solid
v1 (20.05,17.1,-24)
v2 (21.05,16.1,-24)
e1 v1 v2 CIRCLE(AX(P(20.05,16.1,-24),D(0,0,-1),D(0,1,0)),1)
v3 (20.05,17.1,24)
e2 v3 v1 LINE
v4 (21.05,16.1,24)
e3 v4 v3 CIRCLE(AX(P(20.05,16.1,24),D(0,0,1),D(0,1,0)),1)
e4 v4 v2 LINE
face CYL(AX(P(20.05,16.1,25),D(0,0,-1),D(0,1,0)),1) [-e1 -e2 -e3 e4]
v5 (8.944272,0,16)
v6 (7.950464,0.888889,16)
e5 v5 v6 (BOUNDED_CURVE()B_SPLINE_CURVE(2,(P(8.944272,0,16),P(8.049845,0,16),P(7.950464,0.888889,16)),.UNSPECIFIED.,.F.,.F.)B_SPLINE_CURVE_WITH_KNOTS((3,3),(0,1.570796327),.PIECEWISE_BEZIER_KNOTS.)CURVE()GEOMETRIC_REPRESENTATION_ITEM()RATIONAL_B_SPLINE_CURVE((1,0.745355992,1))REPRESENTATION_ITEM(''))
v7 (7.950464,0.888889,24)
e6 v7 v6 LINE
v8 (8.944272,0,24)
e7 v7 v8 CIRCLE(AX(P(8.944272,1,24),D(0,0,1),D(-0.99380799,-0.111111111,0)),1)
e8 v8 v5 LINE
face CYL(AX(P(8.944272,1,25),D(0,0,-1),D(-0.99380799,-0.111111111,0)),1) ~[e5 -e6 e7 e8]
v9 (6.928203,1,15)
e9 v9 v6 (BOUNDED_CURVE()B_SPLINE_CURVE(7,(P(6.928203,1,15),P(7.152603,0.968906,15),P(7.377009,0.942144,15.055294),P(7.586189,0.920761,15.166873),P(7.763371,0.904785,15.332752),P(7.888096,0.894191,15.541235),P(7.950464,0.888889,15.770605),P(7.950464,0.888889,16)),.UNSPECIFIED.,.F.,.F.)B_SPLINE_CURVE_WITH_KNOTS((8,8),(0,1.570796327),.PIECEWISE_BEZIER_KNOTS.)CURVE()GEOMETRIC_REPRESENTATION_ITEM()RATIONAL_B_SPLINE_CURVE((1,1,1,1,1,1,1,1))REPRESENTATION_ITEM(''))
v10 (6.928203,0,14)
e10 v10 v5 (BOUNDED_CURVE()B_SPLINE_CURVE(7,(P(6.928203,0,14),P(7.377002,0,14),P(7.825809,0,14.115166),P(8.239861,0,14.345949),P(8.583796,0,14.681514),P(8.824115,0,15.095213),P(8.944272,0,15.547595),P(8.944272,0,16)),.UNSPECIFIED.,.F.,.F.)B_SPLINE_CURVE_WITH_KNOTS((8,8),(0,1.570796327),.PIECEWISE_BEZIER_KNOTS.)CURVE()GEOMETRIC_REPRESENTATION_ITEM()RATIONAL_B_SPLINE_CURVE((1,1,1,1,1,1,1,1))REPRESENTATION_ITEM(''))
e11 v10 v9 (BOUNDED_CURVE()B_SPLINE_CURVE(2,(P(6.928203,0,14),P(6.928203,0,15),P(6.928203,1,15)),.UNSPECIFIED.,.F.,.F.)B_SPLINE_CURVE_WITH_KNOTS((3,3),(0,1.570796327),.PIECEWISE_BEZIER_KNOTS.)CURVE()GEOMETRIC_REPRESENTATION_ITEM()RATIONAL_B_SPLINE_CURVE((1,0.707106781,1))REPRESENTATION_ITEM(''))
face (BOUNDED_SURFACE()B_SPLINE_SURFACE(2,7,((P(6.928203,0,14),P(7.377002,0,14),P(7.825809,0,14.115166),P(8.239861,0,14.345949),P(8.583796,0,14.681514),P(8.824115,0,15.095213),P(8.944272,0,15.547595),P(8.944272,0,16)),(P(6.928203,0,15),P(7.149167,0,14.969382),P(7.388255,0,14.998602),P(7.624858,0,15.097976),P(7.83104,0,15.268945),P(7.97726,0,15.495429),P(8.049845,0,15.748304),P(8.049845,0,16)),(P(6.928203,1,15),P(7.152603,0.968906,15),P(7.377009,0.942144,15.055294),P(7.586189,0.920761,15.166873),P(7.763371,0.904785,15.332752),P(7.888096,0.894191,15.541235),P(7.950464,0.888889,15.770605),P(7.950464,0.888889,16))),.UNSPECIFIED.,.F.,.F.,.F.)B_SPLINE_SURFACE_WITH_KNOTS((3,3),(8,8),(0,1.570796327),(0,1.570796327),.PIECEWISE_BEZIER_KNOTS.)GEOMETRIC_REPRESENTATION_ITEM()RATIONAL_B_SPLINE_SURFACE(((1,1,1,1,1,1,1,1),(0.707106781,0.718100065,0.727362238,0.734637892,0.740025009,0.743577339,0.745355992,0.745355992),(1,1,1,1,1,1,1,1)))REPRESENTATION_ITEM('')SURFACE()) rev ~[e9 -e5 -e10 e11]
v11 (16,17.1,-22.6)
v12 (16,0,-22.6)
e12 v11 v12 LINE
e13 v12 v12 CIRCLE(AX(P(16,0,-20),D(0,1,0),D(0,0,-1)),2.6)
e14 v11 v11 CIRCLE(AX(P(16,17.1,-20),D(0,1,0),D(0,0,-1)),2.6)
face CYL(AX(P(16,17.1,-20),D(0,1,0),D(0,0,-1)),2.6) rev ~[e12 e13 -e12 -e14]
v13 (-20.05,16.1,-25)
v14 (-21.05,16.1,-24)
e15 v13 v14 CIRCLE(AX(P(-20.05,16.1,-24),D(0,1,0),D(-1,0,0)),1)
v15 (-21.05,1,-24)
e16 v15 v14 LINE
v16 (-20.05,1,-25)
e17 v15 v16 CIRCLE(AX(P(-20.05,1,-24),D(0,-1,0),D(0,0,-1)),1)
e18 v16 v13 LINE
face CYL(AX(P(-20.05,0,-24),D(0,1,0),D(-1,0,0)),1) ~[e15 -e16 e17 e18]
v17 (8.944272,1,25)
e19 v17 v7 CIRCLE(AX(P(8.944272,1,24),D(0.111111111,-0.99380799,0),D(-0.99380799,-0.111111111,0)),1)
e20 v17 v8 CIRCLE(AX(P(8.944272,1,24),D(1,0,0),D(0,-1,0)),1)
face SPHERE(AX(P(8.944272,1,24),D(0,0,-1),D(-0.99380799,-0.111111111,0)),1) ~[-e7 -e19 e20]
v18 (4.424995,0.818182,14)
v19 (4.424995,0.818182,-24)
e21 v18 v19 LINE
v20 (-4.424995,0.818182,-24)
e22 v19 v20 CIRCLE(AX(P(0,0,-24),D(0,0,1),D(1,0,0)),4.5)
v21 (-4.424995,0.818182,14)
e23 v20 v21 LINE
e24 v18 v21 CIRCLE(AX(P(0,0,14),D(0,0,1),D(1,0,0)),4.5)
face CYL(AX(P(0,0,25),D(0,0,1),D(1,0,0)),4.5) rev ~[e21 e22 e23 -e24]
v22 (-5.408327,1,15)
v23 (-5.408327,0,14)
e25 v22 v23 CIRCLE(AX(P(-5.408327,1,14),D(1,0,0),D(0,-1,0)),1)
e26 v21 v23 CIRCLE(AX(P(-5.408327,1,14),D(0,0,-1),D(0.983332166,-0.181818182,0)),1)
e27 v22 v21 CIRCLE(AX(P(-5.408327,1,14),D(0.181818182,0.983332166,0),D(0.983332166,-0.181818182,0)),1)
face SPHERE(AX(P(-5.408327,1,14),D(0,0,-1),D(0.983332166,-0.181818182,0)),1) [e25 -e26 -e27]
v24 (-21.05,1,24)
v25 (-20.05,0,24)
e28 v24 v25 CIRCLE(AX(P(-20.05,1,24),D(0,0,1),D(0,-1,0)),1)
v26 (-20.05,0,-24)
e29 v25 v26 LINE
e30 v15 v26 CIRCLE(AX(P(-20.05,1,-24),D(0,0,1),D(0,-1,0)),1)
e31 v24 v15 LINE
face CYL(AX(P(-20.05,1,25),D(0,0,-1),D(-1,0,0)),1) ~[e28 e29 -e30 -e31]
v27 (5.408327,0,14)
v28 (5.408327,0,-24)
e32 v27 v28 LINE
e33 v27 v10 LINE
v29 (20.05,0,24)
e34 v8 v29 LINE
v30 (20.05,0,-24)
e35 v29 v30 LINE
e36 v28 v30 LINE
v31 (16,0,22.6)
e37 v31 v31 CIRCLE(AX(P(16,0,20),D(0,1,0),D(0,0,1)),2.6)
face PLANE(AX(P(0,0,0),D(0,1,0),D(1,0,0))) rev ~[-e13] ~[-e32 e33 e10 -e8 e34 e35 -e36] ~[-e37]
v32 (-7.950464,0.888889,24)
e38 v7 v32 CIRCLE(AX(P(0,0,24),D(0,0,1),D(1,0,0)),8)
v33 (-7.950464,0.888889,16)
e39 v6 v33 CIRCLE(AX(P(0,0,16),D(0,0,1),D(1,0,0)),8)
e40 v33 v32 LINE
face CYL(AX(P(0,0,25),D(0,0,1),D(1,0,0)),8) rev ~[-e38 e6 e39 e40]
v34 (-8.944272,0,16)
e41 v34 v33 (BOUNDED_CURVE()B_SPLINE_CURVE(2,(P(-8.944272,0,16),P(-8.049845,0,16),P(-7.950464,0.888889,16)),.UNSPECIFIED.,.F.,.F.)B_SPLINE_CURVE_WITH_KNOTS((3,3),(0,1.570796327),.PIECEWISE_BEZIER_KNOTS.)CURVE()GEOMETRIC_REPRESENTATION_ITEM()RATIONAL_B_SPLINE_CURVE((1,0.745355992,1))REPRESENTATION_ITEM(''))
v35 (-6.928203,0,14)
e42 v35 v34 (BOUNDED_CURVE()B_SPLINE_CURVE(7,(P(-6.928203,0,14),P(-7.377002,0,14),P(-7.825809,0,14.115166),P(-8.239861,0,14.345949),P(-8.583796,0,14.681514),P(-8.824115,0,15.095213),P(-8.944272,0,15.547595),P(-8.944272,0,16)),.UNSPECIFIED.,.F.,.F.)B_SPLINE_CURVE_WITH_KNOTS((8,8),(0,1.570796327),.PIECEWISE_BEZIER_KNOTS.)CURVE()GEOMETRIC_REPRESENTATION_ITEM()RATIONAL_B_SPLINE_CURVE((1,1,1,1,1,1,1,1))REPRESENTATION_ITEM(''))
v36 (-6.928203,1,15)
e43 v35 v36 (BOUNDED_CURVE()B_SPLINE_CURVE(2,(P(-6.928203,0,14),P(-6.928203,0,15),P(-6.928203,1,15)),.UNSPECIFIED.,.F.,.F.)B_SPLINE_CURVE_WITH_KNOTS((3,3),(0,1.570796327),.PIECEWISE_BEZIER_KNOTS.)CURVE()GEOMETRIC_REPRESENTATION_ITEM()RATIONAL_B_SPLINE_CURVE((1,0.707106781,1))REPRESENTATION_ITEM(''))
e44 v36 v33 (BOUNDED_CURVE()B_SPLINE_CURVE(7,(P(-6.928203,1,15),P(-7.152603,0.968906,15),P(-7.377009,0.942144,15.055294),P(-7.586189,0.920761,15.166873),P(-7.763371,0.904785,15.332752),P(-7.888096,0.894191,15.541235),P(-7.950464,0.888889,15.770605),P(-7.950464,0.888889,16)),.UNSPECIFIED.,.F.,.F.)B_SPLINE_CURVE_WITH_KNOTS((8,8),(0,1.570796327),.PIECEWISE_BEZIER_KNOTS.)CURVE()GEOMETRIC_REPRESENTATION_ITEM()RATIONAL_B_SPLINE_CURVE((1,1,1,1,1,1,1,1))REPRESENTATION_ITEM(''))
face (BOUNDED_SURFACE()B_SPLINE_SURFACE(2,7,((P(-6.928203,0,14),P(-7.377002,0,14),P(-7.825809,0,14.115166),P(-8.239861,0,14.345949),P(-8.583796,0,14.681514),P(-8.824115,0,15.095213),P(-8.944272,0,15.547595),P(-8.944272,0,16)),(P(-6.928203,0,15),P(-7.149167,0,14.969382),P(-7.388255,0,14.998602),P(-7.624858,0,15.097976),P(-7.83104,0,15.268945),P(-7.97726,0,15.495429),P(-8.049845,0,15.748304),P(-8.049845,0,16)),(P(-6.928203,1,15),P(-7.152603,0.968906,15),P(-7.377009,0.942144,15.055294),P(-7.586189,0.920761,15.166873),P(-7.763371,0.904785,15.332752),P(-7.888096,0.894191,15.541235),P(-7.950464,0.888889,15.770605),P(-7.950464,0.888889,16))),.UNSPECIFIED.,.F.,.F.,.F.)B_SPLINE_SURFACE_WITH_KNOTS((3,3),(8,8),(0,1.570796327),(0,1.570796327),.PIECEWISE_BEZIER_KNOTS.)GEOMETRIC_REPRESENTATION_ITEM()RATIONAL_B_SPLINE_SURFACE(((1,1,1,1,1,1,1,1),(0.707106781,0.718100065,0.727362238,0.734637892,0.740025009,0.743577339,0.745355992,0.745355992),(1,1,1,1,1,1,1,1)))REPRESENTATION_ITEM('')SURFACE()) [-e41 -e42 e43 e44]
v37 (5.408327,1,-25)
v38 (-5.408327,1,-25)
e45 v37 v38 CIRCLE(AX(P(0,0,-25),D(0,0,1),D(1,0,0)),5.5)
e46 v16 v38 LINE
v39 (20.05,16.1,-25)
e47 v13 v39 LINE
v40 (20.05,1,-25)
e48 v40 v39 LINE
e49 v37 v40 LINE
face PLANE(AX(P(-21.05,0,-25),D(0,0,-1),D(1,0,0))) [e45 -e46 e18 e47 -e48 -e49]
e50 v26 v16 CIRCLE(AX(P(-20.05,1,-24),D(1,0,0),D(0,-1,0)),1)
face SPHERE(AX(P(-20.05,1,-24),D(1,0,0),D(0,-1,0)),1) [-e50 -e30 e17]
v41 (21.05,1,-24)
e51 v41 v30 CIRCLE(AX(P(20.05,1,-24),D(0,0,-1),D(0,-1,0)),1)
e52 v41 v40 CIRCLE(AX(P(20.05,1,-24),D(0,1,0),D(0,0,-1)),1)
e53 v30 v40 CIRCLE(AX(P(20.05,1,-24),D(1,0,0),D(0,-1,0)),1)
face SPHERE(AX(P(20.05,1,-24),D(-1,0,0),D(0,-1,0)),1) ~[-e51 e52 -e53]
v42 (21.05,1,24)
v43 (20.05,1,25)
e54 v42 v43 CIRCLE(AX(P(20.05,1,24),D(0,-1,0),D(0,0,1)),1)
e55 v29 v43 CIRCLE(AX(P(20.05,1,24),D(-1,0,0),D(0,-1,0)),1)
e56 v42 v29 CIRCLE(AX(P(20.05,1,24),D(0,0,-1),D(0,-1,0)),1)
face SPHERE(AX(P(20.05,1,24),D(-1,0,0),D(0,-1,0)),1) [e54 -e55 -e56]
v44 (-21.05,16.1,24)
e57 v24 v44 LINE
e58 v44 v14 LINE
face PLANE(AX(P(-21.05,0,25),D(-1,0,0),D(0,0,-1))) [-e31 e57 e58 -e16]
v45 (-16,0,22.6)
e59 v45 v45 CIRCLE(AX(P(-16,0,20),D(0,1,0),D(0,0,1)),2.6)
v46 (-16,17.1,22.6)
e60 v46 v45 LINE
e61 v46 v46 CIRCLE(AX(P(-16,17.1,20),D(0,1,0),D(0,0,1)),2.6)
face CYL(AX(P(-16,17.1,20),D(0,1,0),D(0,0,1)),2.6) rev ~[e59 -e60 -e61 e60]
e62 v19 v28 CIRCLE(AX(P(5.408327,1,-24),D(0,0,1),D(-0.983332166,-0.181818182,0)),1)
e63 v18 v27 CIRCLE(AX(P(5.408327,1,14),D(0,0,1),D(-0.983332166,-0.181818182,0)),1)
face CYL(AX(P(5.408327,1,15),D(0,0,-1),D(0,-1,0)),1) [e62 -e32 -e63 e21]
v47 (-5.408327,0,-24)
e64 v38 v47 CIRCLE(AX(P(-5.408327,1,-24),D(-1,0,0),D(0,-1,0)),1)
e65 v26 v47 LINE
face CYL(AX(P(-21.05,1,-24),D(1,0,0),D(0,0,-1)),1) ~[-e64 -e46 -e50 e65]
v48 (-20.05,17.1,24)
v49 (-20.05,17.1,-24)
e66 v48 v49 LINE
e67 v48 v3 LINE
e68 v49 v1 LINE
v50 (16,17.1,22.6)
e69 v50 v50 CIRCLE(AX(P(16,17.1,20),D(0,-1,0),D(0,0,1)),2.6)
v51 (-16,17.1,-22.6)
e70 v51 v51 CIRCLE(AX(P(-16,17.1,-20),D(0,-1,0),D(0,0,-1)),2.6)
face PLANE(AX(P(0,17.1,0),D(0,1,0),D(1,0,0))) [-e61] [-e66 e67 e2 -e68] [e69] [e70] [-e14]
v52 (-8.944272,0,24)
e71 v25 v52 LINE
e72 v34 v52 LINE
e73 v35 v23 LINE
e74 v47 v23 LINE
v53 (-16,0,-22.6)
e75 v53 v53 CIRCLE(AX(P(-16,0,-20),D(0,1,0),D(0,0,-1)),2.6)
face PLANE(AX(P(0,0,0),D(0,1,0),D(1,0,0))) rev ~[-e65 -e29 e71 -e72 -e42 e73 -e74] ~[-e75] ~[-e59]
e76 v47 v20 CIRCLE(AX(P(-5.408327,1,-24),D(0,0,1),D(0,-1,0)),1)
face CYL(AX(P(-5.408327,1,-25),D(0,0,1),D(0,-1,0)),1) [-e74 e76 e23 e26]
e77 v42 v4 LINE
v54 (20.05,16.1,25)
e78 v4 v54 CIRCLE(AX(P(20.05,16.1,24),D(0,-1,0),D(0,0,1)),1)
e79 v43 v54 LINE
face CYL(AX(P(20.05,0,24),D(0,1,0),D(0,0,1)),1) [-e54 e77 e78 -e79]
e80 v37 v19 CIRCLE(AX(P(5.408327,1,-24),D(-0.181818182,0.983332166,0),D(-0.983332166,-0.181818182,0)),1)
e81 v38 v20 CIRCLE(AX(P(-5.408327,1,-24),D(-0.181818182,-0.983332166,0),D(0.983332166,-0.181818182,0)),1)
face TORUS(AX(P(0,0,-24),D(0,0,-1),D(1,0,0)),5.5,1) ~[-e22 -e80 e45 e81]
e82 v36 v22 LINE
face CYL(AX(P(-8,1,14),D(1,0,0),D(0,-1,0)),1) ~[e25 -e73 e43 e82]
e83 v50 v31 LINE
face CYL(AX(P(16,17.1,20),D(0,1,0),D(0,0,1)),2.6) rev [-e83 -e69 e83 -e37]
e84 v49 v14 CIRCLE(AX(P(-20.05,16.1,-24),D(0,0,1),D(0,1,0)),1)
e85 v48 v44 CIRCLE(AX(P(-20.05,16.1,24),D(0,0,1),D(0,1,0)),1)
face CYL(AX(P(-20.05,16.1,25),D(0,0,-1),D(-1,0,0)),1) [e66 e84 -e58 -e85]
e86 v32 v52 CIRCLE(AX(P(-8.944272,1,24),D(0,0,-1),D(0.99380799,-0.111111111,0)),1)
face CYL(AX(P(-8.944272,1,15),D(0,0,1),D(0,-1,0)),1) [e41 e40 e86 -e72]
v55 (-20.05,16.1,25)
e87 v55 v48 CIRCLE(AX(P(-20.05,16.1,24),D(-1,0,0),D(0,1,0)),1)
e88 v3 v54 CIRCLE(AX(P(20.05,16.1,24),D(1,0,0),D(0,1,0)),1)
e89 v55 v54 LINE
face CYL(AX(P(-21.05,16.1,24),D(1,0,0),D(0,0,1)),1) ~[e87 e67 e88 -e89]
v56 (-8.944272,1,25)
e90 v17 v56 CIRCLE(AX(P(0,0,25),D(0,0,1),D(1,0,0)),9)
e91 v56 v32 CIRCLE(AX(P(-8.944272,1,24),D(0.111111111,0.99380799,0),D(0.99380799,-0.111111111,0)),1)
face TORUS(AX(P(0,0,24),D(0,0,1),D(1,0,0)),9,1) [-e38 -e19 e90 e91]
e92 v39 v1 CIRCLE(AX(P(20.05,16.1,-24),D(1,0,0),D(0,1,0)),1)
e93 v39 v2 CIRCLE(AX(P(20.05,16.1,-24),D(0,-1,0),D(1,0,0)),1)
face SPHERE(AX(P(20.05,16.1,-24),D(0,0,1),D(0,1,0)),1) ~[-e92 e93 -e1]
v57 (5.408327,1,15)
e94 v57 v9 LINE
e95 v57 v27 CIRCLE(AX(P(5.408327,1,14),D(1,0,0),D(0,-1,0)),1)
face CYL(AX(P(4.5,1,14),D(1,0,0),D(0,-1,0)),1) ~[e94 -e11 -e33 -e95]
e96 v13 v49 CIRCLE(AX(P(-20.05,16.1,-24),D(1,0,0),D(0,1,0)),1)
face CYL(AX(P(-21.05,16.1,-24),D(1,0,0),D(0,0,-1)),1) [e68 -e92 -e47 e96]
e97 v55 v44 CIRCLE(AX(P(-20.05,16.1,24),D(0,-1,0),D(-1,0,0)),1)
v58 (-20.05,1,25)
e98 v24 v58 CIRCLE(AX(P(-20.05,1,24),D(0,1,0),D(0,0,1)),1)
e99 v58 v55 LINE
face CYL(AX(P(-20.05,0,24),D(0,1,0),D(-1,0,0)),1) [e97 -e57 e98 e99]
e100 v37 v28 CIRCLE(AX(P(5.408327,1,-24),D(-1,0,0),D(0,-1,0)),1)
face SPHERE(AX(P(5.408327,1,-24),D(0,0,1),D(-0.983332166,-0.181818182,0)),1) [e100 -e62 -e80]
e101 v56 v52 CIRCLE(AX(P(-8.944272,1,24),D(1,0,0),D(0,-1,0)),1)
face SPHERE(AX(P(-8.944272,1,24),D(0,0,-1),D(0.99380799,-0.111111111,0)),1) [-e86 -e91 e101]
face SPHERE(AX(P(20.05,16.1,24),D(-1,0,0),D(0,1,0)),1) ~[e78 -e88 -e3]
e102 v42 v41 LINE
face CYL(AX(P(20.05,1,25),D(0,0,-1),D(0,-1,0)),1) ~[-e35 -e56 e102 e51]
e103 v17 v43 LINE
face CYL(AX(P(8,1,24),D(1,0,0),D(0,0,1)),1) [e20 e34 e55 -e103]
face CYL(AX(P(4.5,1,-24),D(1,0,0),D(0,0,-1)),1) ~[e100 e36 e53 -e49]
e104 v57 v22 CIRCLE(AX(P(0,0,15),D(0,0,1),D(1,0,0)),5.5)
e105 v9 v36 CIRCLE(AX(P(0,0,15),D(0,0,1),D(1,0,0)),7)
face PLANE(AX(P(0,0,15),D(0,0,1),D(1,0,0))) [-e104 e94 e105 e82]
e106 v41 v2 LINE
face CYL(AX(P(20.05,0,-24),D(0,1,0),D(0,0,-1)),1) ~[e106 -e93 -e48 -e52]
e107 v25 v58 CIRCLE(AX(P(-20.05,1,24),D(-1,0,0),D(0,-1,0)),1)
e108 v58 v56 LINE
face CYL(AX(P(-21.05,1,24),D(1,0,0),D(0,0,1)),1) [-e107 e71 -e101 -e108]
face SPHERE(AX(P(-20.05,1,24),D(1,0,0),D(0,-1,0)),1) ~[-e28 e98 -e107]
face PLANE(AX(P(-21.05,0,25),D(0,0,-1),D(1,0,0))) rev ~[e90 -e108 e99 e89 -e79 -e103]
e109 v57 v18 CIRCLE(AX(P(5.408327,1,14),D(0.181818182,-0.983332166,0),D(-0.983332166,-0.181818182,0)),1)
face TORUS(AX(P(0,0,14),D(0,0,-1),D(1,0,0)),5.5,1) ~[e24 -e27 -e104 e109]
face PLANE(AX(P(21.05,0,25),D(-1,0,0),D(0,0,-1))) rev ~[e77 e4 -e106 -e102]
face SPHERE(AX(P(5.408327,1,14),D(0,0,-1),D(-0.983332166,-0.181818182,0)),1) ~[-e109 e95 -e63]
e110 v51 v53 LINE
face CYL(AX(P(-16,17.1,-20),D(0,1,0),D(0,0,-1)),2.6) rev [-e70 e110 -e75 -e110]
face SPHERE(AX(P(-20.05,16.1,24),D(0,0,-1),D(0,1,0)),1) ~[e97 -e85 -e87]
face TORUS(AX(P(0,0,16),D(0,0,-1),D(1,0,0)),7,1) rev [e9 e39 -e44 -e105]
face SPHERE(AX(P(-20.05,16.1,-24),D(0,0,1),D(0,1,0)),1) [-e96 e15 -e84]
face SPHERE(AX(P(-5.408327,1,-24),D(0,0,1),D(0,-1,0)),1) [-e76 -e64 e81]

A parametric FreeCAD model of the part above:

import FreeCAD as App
import Part
import Sketcher
from FreeCAD import Vector


def edges_at(feature, points):
    """Names of the edges that pass closest to the given points."""
    edges = feature.Shape.Edges
    near = lambda p: min(range(len(edges)), key=lambda i: edges[i].distToShape(Part.Vertex(*p))[0])
    return sorted({f"Edge{near(p) + 1}" for p in points})

doc = App.newDocument("Part")
body = doc.addObject("PartDesign::Body", "Body")

# Sketch on XZ plane
sketch1 = doc.addObject("Sketcher::SketchObject", "Sketch")
body.addObject(sketch1)
sketch1.AttachmentSupport = (doc.XZ_Plane, [""])
sketch1.MapMode = "FlatFace"
sketch1.addGeometry([
    Part.LineSegment(Vector(-21.05, -25, 0), Vector(-21.05, 25, 0)),
    Part.LineSegment(Vector(-21.05, 25, 0), Vector(21.05, 25, 0)),
    Part.LineSegment(Vector(21.05, 25, 0), Vector(21.05, -25, 0)),
    Part.LineSegment(Vector(21.05, -25, 0), Vector(-21.05, -25, 0)),
], False)
sketch1.addConstraint([
    Sketcher.Constraint("Coincident", 0, 2, 1, 1),
    Sketcher.Constraint("Coincident", 1, 2, 2, 1),
    Sketcher.Constraint("Coincident", 2, 2, 3, 1),
    Sketcher.Constraint("Coincident", 3, 2, 0, 1),
    Sketcher.Constraint("Vertical", 0),
    Sketcher.Constraint("Horizontal", 1),
    Sketcher.Constraint("Vertical", 2),
    Sketcher.Constraint("Horizontal", 3),
    Sketcher.Constraint("Symmetric", 0, 2, 2, 2, -1, 1),
    Sketcher.Constraint("DistanceY", 0, 1, 0, 2, 50.0),
    Sketcher.Constraint("DistanceX", 1, 1, 1, 2, 42.1),
])
pad1 = doc.addObject("PartDesign::Pad", "Pad")
body.addObject(pad1)
pad1.Profile = sketch1
pad1.Length = 17.1
pad1.Reversed = True

# Sketch on XZ plane
sketch2 = doc.addObject("Sketcher::SketchObject", "Sketch001")
body.addObject(sketch2)
sketch2.AttachmentSupport = (doc.XZ_Plane, [""])
sketch2.MapMode = "FlatFace"
sketch2.AttachmentOffset = App.Placement(Vector(0, 0, -17.1), App.Rotation())
sketch2.addGeometry(Part.Circle(Vector(-16, 20, 0), Vector(0, 0, 1), 2.6), False)
sketch2.addConstraint([
    Sketcher.Constraint("Diameter", 0, 5.2),
    Sketcher.Constraint("DistanceX", 0, 3, -1, 1, 16.0),
    Sketcher.Constraint("DistanceY", -1, 1, 0, 3, 20.0),
])
pocket1 = doc.addObject("PartDesign::Pocket", "Pocket")
body.addObject(pocket1)
pocket1.Profile = sketch2
pocket1.Type = "ThroughAll"
pocket1.Reversed = True
doc.recompute()

mirrored = doc.addObject("PartDesign::Mirrored", "Mirrored")
body.addObject(mirrored)
mirrored.Originals = [pocket1]
mirrored.MirrorPlane = (doc.XY_Plane, [""])
body.Tip = mirrored
doc.recompute()

mirrored2 = doc.addObject("PartDesign::Mirrored", "Mirrored001")
body.addObject(mirrored2)
mirrored2.Originals = [pocket1]
mirrored2.MirrorPlane = (doc.YZ_Plane, [""])
body.Tip = mirrored2

# Sketch on XZ plane
sketch3 = doc.addObject("Sketcher::SketchObject", "Sketch002")
body.addObject(sketch3)
sketch3.AttachmentSupport = (doc.XZ_Plane, [""])
sketch3.MapMode = "FlatFace"
sketch3.AttachmentOffset = App.Placement(Vector(0, 0, -17.1), App.Rotation())
sketch3.addGeometry(Part.Circle(Vector(16, -20, 0), Vector(0, 0, 1), 2.6), False)
sketch3.addConstraint([
    Sketcher.Constraint("Diameter", 0, 5.2),
    Sketcher.Constraint("DistanceX", -1, 1, 0, 3, 16.0),
    Sketcher.Constraint("DistanceY", 0, 3, -1, 1, 20.0),
])
pocket2 = doc.addObject("PartDesign::Pocket", "Pocket001")
body.addObject(pocket2)
pocket2.Profile = sketch3
pocket2.Type = "ThroughAll"
pocket2.Reversed = True

# Sketch on XY plane
sketch4 = doc.addObject("Sketcher::SketchObject", "Sketch003")
body.addObject(sketch4)
sketch4.AttachmentSupport = (doc.XY_Plane, [""])
sketch4.MapMode = "FlatFace"
sketch4.AttachmentOffset = App.Placement(Vector(0, 0, 25), App.Rotation())
sketch4.addGeometry(Part.Circle(Vector(0, 0, 0), Vector(0, 0, 1), 4.5), False)
sketch4.addConstraint([
    Sketcher.Constraint("Coincident", 0, 3, -1, 1),
    Sketcher.Constraint("Diameter", 0, 9.0),
])
pocket3 = doc.addObject("PartDesign::Pocket", "Pocket002")
body.addObject(pocket3)
pocket3.Profile = sketch4
pocket3.Type = "ThroughAll"

# Sketch on XY plane
sketch5 = doc.addObject("Sketcher::SketchObject", "Sketch004")
body.addObject(sketch5)
sketch5.AttachmentSupport = (doc.XY_Plane, [""])
sketch5.MapMode = "FlatFace"
sketch5.AttachmentOffset = App.Placement(Vector(0, 0, 25), App.Rotation())
sketch5.addGeometry(Part.Circle(Vector(0, 0, 0), Vector(0, 0, 1), 8), False)
sketch5.addConstraint([
    Sketcher.Constraint("Coincident", 0, 3, -1, 1),
    Sketcher.Constraint("Diameter", 0, 16.0),
])
pocket4 = doc.addObject("PartDesign::Pocket", "Pocket003")
body.addObject(pocket4)
pocket4.Profile = sketch5
pocket4.Length = 10
doc.recompute()

fillet = doc.addObject("PartDesign::Fillet", "Fillet")
body.addObject(fillet)
fillet.Base = (pocket4, edges_at(pocket4, [
    (-21.05, 17.1, 0),
    (0, 17.1, 25),
    (-12.775, 0, -25),
    (4.5, 0, -5),
    (0, 4.5, -25),
    (21.05, 17.1, 0),
    (-4.5, 0, -5),
    (0, 4.5, 15),
    (14.525, 0, 25),
    (-14.525, 0, 25),
    (8, 0, 20),
    (-8, 0, 20),
    (0, 8, 15),
    (6.25, 0, 15),
    (-6.25, 0, 15),
    (0, 8, 25),
    (-21.05, 0, 0),
    (12.775, 0, -25),
    (21.05, 0, 0),
    (0, 17.1, -25),
    (21.05, 8.55, 25),
    (-21.05, 8.55, 25),
    (-21.05, 8.55, -25),
    (21.05, 8.55, -25),
]))
fillet.Radius = 1

doc.recompute()
